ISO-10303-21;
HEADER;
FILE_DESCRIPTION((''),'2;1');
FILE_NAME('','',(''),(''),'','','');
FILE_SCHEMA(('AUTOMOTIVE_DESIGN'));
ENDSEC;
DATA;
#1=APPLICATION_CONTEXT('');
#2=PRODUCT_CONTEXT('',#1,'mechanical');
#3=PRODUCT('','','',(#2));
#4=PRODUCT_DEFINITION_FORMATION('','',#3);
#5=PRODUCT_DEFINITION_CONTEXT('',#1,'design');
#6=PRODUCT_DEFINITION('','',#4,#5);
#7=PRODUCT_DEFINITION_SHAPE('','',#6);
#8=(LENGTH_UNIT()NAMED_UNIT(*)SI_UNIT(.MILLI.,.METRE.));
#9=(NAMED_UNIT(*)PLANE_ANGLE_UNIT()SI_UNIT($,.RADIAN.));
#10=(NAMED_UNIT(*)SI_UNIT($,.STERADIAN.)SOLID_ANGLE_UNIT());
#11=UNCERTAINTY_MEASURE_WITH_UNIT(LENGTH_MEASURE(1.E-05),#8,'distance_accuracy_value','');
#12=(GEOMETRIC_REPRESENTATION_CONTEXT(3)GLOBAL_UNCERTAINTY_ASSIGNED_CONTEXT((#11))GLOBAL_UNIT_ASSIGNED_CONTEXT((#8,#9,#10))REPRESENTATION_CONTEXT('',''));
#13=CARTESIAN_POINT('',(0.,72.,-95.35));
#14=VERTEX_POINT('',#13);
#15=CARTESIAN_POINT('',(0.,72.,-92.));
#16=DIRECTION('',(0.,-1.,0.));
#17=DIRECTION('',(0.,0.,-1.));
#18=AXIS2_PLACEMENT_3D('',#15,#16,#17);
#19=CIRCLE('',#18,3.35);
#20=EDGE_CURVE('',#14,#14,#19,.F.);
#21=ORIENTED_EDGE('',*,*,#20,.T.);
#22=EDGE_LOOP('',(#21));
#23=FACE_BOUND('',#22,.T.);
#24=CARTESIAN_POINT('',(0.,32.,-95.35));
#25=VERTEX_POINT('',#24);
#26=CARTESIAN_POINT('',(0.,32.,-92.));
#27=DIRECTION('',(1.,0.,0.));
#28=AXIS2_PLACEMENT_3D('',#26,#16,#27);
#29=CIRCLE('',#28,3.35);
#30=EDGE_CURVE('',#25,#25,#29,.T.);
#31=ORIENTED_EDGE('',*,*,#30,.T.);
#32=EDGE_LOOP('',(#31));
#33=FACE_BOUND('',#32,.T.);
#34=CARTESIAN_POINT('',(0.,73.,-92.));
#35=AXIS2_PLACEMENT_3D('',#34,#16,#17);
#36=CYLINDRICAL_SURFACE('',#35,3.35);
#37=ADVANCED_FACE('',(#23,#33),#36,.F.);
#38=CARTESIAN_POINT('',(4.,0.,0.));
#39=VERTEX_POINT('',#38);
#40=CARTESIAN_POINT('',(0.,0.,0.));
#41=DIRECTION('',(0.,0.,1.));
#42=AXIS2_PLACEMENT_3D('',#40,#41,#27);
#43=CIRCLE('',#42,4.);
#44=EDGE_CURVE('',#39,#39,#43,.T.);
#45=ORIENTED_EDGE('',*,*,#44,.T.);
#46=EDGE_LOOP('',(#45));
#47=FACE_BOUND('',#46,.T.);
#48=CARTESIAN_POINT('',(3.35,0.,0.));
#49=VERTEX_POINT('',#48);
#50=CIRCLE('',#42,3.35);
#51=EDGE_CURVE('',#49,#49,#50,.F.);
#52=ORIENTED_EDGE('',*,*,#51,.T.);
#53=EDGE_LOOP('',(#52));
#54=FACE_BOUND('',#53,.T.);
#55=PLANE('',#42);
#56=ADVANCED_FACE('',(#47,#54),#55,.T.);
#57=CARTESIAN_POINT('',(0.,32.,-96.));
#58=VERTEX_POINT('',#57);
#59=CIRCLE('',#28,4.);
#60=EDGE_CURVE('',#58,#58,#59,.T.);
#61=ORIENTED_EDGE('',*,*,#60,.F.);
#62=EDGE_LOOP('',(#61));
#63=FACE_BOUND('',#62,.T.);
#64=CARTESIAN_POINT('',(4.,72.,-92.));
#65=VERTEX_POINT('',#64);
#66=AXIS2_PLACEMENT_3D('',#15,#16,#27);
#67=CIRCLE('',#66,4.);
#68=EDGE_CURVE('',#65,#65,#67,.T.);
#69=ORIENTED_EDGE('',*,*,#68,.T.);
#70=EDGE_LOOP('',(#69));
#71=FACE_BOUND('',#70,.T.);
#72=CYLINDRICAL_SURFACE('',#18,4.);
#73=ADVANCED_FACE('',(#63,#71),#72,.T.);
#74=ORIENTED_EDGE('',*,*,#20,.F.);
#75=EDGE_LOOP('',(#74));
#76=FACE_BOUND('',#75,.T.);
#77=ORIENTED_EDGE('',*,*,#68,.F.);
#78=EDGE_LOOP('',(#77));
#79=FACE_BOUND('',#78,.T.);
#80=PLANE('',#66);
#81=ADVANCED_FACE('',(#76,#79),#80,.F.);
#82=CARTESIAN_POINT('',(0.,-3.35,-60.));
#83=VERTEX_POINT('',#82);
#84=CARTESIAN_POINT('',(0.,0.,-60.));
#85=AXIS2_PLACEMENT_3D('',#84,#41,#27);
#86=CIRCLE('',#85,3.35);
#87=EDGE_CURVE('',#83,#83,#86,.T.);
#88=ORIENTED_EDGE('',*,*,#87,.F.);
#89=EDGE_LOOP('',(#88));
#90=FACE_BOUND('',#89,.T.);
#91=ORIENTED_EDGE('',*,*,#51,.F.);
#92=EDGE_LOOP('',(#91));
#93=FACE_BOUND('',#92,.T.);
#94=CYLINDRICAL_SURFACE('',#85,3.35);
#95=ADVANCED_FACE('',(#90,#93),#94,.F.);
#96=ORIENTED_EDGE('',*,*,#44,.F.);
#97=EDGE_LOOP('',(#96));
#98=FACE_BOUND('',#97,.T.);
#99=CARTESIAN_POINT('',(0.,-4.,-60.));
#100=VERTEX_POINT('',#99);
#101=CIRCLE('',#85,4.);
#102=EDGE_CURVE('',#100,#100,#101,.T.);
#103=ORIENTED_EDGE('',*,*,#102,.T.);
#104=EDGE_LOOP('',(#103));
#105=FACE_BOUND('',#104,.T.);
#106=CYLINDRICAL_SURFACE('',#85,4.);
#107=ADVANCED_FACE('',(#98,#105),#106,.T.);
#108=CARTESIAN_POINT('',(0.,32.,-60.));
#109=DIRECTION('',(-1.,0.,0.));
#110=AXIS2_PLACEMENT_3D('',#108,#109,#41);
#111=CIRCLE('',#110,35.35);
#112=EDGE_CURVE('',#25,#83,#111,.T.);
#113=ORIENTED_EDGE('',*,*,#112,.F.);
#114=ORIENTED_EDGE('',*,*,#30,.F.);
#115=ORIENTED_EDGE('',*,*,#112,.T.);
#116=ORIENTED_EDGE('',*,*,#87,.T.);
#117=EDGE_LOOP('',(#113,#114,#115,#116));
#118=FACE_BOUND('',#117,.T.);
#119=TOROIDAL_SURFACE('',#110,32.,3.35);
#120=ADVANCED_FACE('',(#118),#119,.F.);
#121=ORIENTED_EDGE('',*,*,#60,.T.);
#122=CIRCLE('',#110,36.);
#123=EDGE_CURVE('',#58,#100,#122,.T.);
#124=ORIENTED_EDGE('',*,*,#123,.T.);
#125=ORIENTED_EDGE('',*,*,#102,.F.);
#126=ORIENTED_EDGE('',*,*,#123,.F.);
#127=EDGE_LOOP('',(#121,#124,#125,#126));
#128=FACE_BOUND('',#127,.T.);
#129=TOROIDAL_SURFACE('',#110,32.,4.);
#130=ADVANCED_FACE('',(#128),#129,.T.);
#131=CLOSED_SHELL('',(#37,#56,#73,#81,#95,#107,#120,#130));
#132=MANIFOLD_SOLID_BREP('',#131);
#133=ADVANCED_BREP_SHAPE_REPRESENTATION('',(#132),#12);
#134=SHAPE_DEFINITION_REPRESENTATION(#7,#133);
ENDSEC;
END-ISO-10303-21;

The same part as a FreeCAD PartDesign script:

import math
import FreeCAD as App
import Part
import Sketcher

V = App.Vector
Q = App.Units.Quantity

doc = App.newDocument("Part")
body = doc.addObject("PartDesign::Body", "Body")

sketch1 = doc.addObject("Sketcher::SketchObject", "Sketch")
body.addObject(sketch1)
sketch1.AttachmentSupport = (doc.XY_Plane, [""])
sketch1.MapMode = "FlatFace"
sketch1.addGeometry(Part.Circle(V(0, 0, 0), V(0, 0, 1), 4), False)
sketch1.addConstraint(Sketcher.Constraint("Coincident", 0, 3, -1, 1))
sketch1.addConstraint(Sketcher.Constraint("Diameter", 0, Q("8 mm")))

sketch2 = doc.addObject("Sketcher::SketchObject", "Sketch001")
body.addObject(sketch2)
sketch2.AttachmentSupport = (doc.YZ_Plane, [""])
sketch2.MapMode = "FlatFace"
sketch2.addGeometry(Part.LineSegment(V(0, 0, 0), V(0, -60, 0)), False)
sketch2.addGeometry(Part.ArcOfCircle(Part.Circle(V(32, -60, 0), V(0, 0, 1), 32), math.radians(180), math.radians(270)), False)
sketch2.addGeometry(Part.LineSegment(V(32, -92, 0), V(72, -92, 0)), False)
sketch2.addConstraint(Sketcher.Constraint("Tangent", 0, 2, 1, 1))
sketch2.addConstraint(Sketcher.Constraint("Tangent", 1, 2, 2, 1))
sketch2.addConstraint(Sketcher.Constraint("Vertical", 0))
sketch2.addConstraint(Sketcher.Constraint("Horizontal", 2))
sketch2.addConstraint(Sketcher.Constraint("Coincident", 0, 1, -1, 1))
sketch2.addConstraint(Sketcher.Constraint("Radius", 1, Q("32 mm")))
sketch2.addConstraint(Sketcher.Constraint("DistanceX", 2, 1, 2, 2, Q("40 mm")))
sketch2.addConstraint(Sketcher.Constraint("DistanceY", 0, 2, 0, 1, Q("60 mm")))
doc.recompute()

additivepipe = doc.addObject("PartDesign::AdditivePipe", "AdditivePipe")
body.addObject(additivepipe)
additivepipe.Profile = sketch1
additivepipe.Spine = (sketch2, ["Edge1", "Edge2", "Edge3"])

sketch3 = doc.addObject("Sketcher::SketchObject", "Sketch002")
body.addObject(sketch3)
sketch3.AttachmentSupport = (doc.XY_Plane, [""])
sketch3.MapMode = "FlatFace"
sketch3.addGeometry(Part.Circle(V(0, 0, 0), V(0, 0, 1), 3.4), False)
sketch3.addConstraint(Sketcher.Constraint("Coincident", 0, 3, -1, 1))
sketch3.addConstraint(Sketcher.Constraint("Diameter", 0, Q("6.7 mm")))

sketch4 = doc.addObject("Sketcher::SketchObject", "Sketch003")
body.addObject(sketch4)
sketch4.AttachmentSupport = (doc.YZ_Plane, [""])
sketch4.MapMode = "FlatFace"
sketch4.addGeometry(Part.LineSegment(V(0, 0, 0), V(0, -60, 0)), False)
sketch4.addGeometry(Part.ArcOfCircle(Part.Circle(V(32, -60, 0), V(0, 0, 1), 32), math.radians(180), math.radians(270)), False)
sketch4.addGeometry(Part.LineSegment(V(32, -92, 0), V(72, -92, 0)), False)
sketch4.addConstraint(Sketcher.Constraint("Tangent", 0, 2, 1, 1))
sketch4.addConstraint(Sketcher.Constraint("Tangent", 1, 2, 2, 1))
sketch4.addConstraint(Sketcher.Constraint("Vertical", 0))
sketch4.addConstraint(Sketcher.Constraint("Horizontal", 2))
sketch4.addConstraint(Sketcher.Constraint("Coincident", 0, 1, -1, 1))
sketch4.addConstraint(Sketcher.Constraint("Radius", 1, Q("32 mm")))
sketch4.addConstraint(Sketcher.Constraint("DistanceX", 2, 1, 2, 2, Q("40 mm")))
sketch4.addConstraint(Sketcher.Constraint("DistanceY", 0, 2, 0, 1, Q("60 mm")))
doc.recompute()

subtractivepipe = doc.addObject("PartDesign::SubtractivePipe", "SubtractivePipe")
body.addObject(subtractivepipe)
subtractivepipe.Profile = sketch3
subtractivepipe.Spine = (sketch4, ["Edge1", "Edge2", "Edge3"])

doc.recompute()
